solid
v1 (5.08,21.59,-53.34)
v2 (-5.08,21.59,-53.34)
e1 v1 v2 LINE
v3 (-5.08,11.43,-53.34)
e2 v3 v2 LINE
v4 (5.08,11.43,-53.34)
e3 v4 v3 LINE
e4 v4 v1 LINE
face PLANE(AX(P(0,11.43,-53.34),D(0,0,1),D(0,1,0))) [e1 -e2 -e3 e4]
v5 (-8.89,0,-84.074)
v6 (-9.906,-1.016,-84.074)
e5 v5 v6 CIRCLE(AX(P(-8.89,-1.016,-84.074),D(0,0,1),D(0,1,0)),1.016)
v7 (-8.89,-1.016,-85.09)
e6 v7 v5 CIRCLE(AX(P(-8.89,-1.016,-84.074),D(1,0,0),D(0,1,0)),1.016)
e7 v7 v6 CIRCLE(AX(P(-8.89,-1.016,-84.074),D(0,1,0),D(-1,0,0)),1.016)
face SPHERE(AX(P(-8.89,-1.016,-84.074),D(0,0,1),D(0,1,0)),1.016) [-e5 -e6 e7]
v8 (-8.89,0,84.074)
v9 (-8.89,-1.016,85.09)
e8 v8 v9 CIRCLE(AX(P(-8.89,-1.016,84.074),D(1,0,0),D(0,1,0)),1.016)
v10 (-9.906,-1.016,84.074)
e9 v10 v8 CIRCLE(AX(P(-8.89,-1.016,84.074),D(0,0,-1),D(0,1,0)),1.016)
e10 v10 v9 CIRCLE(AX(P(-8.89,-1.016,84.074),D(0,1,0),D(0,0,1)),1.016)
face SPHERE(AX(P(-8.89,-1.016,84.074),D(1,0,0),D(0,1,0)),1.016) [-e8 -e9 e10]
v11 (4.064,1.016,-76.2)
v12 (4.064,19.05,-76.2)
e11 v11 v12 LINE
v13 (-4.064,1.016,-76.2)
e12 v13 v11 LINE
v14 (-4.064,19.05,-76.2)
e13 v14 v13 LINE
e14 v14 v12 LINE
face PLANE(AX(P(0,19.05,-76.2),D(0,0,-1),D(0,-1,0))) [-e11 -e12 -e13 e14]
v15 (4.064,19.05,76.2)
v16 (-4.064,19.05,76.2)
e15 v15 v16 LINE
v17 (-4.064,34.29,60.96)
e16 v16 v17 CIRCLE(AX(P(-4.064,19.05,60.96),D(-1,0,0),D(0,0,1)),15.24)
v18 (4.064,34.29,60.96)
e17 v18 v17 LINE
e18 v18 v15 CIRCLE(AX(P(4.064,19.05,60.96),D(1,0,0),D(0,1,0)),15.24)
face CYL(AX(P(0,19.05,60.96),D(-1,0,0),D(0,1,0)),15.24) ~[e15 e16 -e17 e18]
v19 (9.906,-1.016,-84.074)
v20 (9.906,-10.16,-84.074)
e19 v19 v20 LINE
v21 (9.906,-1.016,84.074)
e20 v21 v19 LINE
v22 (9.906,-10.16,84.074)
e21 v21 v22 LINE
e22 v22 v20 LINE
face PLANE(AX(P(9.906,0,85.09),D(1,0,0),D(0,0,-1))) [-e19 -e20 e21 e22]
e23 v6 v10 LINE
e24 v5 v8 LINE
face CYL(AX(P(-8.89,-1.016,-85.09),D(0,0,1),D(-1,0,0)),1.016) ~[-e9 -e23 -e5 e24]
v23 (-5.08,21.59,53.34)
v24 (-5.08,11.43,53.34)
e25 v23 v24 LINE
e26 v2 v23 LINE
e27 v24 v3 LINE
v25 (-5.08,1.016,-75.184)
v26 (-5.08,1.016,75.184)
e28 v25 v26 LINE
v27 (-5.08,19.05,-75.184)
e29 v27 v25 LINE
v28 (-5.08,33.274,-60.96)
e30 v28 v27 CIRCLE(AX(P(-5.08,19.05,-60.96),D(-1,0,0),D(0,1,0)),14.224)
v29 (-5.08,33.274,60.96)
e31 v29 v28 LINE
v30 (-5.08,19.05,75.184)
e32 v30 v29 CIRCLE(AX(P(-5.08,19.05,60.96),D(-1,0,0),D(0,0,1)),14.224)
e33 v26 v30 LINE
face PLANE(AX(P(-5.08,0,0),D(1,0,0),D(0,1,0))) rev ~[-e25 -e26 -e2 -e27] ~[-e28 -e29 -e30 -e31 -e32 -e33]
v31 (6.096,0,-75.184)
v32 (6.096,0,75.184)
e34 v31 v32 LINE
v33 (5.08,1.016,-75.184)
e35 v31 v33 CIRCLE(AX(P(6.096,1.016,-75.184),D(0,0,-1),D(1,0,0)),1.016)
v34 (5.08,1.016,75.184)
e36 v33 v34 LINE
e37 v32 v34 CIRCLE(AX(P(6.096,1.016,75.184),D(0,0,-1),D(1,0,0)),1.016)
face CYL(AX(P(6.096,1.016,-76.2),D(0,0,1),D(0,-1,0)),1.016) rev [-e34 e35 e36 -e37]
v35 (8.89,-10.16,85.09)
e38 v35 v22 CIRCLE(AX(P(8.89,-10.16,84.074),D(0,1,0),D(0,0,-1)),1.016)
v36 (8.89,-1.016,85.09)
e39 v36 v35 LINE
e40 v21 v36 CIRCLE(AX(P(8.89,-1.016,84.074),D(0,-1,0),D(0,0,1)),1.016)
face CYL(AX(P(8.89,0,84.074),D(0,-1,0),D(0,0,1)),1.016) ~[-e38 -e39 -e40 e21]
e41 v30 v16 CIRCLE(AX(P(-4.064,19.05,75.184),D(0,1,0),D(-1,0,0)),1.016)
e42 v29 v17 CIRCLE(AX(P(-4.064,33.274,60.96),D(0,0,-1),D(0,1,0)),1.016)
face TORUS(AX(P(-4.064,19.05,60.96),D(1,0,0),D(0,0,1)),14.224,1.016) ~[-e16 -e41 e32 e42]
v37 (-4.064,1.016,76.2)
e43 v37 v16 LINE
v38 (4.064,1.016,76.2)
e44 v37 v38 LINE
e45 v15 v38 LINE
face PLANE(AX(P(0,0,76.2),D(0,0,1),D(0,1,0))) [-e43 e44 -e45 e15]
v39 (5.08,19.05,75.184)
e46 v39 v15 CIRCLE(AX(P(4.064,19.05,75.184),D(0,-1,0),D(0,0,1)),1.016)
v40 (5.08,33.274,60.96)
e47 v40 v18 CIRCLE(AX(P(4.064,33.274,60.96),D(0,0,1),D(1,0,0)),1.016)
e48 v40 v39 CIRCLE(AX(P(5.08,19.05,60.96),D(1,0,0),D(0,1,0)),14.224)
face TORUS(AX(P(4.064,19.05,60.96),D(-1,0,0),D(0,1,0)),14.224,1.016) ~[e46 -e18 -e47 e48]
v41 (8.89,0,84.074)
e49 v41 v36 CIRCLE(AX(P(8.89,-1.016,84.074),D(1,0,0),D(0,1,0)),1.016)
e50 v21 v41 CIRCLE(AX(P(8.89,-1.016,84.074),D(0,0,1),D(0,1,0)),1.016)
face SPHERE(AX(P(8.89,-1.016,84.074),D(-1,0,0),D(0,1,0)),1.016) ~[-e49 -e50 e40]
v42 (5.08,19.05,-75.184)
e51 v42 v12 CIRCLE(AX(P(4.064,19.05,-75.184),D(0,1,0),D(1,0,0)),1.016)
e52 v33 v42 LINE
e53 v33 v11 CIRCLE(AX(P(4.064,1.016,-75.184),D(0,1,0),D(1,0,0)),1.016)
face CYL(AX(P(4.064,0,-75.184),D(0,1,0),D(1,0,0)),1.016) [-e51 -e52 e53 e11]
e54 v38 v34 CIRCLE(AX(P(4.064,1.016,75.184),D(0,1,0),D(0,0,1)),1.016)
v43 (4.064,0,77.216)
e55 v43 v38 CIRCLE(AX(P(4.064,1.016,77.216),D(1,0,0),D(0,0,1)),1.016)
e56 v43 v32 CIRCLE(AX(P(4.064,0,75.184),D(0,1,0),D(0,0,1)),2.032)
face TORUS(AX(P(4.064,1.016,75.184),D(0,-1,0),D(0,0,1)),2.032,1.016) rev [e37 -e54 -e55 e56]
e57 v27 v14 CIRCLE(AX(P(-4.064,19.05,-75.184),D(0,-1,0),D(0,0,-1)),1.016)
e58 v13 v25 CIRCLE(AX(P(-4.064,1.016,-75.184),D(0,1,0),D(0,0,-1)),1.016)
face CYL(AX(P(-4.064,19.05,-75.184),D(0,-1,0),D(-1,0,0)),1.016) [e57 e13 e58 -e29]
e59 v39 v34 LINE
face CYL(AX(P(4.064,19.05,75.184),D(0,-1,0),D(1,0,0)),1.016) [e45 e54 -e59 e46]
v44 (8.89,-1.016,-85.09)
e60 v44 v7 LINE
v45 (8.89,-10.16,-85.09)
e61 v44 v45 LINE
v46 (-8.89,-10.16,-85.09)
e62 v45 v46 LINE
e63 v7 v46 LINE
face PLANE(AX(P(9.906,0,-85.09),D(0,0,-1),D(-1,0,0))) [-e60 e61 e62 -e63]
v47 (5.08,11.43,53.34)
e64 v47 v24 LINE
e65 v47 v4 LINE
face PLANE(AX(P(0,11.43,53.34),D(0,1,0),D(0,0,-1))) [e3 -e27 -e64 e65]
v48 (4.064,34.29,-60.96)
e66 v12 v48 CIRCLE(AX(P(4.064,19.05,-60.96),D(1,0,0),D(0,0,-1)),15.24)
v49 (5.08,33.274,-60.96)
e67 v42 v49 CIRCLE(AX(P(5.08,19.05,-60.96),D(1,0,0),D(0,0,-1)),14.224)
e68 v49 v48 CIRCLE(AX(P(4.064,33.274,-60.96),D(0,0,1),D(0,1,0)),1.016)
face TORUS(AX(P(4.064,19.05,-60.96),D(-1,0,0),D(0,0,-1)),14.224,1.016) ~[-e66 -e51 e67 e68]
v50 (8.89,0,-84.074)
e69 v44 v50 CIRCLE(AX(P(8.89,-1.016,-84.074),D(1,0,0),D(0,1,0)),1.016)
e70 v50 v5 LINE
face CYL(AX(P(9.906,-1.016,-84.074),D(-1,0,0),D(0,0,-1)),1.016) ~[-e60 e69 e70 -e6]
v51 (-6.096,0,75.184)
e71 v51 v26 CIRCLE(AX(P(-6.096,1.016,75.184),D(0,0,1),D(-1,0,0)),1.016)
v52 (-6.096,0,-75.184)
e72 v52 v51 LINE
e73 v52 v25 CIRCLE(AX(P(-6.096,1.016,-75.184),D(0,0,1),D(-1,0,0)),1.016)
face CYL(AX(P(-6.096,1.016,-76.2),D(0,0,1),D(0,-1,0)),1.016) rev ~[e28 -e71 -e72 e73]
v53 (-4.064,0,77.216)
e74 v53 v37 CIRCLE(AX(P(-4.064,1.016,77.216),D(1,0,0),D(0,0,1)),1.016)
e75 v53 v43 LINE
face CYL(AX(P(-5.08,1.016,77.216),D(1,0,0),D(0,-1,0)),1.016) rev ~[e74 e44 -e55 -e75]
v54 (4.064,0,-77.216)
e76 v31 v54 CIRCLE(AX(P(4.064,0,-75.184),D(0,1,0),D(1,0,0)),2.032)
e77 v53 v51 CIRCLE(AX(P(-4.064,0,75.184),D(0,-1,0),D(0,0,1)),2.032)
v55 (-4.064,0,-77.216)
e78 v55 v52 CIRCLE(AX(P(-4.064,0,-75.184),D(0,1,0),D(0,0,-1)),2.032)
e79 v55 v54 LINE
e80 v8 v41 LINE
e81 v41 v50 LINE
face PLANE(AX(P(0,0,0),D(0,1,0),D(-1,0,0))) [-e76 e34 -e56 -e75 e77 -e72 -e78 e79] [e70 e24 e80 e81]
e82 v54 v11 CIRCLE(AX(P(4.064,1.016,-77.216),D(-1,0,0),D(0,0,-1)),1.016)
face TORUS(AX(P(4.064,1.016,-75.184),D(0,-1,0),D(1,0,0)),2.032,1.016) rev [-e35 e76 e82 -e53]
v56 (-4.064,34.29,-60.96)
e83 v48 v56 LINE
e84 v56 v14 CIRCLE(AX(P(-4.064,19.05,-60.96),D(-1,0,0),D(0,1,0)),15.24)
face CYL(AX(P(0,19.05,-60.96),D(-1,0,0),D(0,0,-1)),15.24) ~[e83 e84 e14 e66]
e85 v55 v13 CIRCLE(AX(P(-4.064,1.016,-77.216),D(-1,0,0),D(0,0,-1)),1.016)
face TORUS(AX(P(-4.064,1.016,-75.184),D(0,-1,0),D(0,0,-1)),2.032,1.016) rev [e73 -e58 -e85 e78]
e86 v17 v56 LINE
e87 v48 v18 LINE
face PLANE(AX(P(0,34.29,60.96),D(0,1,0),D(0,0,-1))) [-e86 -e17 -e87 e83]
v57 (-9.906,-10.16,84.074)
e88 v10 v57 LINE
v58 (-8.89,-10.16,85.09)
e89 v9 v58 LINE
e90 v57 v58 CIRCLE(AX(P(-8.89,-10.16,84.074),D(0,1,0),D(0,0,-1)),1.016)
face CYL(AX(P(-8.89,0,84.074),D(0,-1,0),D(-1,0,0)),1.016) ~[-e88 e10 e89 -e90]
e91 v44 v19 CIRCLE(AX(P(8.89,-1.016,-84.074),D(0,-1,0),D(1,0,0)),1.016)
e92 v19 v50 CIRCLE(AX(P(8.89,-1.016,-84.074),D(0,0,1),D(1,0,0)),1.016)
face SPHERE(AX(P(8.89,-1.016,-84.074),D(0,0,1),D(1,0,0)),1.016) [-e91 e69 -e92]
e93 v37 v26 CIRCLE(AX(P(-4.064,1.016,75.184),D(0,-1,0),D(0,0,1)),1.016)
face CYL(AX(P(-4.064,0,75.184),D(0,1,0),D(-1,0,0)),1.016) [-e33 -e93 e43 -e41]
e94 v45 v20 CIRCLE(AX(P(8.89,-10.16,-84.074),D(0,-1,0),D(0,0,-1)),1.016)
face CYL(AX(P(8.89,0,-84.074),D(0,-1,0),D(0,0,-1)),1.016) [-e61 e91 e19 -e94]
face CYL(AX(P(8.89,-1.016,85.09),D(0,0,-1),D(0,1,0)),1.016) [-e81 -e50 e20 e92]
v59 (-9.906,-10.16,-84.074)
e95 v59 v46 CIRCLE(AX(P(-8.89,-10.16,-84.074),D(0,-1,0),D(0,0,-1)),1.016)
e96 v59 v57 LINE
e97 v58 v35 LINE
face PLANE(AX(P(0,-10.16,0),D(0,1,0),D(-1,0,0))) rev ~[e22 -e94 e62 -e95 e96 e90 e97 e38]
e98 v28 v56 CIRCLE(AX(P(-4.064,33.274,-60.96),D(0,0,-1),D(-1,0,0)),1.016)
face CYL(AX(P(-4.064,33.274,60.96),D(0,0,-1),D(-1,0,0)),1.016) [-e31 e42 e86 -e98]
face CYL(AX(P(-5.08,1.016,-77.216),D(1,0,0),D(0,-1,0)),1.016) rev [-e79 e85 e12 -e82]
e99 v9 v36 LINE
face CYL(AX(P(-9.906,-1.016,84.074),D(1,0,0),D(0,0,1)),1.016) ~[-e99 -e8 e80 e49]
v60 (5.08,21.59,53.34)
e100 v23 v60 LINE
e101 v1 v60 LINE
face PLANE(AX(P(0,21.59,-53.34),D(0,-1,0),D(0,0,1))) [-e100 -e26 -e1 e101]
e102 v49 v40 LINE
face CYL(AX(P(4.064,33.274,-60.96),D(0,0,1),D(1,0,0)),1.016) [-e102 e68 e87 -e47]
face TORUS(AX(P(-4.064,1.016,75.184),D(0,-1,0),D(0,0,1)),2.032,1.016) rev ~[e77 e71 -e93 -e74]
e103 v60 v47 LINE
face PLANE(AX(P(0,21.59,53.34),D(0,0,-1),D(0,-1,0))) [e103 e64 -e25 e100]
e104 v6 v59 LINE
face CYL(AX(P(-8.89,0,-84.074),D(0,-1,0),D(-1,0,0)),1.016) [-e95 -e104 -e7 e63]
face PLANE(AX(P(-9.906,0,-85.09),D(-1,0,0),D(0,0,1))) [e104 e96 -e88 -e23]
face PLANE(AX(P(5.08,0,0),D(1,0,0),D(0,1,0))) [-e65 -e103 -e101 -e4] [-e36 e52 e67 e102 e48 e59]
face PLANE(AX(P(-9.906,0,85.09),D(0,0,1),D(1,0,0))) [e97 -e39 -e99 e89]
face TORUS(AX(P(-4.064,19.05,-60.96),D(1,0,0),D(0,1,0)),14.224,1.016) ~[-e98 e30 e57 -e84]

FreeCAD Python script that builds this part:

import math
import FreeCAD as App
import Part
import Sketcher
Q = App.Units.Quantity


def edges_at(feature, points):
    """Names of the edges that pass closest to the given points."""
    edges = feature.Shape.Edges
    near = lambda p: min(range(len(edges)), key=lambda i: edges[i].distToShape(Part.Vertex(*p))[0])
    return sorted({f"Edge{near(p) + 1}" for p in points})


def add_polygon(sketch, points):
    """Adds a closed chain of lines whose ends are joined by coincident constraints."""
    first, n = sketch.GeometryCount, len(points)
    for a, b in zip(points, points[1:] + points[:1]):
        sketch.addGeometry(Part.LineSegment(App.Vector(*a, 0), App.Vector(*b, 0)), False)
    for i in range(n):
        sketch.addConstraint(Sketcher.Constraint("Coincident", first + i, 2, first + (i + 1) % n, 1))

doc = App.newDocument("Part")
body = doc.addObject("PartDesign::Body", "Body")

# Sketch on YZ plane
sketch1 = body.newObject("Sketcher::SketchObject", "Sketch")
sketch1.AttachmentSupport = (doc.getObject("YZ_Plane"), [""])
sketch1.MapMode = "FlatFace"
sketch1.addGeometry(Part.LineSegment(App.Vector(19, 76, 0), App.Vector(0, 76, 0)), False)  # 0
sketch1.addGeometry(Part.LineSegment(App.Vector(0, 76, 0), App.Vector(0, -76, 0)), False)  # 1
sketch1.addGeometry(Part.LineSegment(App.Vector(0, -76, 0), App.Vector(19, -76, 0)), False)  # 2
sketch1.addGeometry(Part.ArcOfCircle(Part.Circle(App.Vector(19, -61, 0), App.Vector(0, 0, 1), 15), math.radians(-90), math.radians(0)), False)  # 3
sketch1.addGeometry(Part.LineSegment(App.Vector(34, -61, 0), App.Vector(34, 61, 0)), False)  # 4
sketch1.addGeometry(Part.ArcOfCircle(Part.Circle(App.Vector(19, 61, 0), App.Vector(0, 0, 1), 15), math.radians(0), math.radians(90)), False)  # 5
add_polygon(sketch1, [(11, 53), (22, 53), (22, -53), (11, -53)])  # lines 6-9
sketch1.addConstraint(Sketcher.Constraint("Coincident", 0, 2, 1, 1))
sketch1.addConstraint(Sketcher.Constraint("Coincident", 1, 2, 2, 1))
sketch1.addConstraint(Sketcher.Constraint("Tangent", 2, 2, 3, 1))
sketch1.addConstraint(Sketcher.Constraint("Tangent", 3, 2, 4, 1))
sketch1.addConstraint(Sketcher.Constraint("Tangent", 4, 2, 5, 1))
sketch1.addConstraint(Sketcher.Constraint("Tangent", 5, 2, 0, 1))
sketch1.addConstraint(Sketcher.Constraint("Horizontal", 0))
sketch1.addConstraint(Sketcher.Constraint("Vertical", 1))
sketch1.addConstraint(Sketcher.Constraint("Horizontal", 2))
sketch1.addConstraint(Sketcher.Constraint("Vertical", 4))
sketch1.addConstraint(Sketcher.Constraint("Horizontal", 6))
sketch1.addConstraint(Sketcher.Constraint("Vertical", 7))
sketch1.addConstraint(Sketcher.Constraint("Horizontal", 8))
sketch1.addConstraint(Sketcher.Constraint("Vertical", 9))
sketch1.addConstraint(Sketcher.Constraint("Equal", 3, 5))
sketch1.addConstraint(Sketcher.Constraint("Symmetric", 0, 2, 1, 2, -1, 1))
sketch1.addConstraint(Sketcher.Constraint("Radius", 3, Q("0.6 in")))
sketch1.addConstraint(Sketcher.Constraint("DistanceY", 1, 2, 1, 1, Q("6 in")))
sketch1.addConstraint(Sketcher.Constraint("DistanceX", 6, 1, 6, 2, Q("0.4 in")))
sketch1.addConstraint(Sketcher.Constraint("DistanceY", 7, 2, 7, 1, Q("4.2 in")))
sketch1.addConstraint(Sketcher.Constraint("DistanceX", -1, 1, 3, 2, Q("1.35 in")))
sketch1.addConstraint(Sketcher.Constraint("DistanceX", -1, 1, 8, 2, Q("0.45 in")))
sketch1.addConstraint(Sketcher.Constraint("DistanceY", -1, 1, 6, 2, Q("2.1 in")))
pad1 = body.newObject("PartDesign::Pad", "Pad")
pad1.Profile = sketch1
pad1.Length = Q("0.4 in")
pad1.Midplane = True

# Sketch on XZ plane
sketch2 = body.newObject("Sketcher::SketchObject", "Sketch001")
sketch2.AttachmentSupport = (doc.getObject("XZ_Plane"), [""])
sketch2.MapMode = "FlatFace"
add_polygon(sketch2, [(-10, -85), (-10, 85), (10, 85), (10, -85)])  # lines 0-3
sketch2.addConstraint(Sketcher.Constraint("Vertical", 0))
sketch2.addConstraint(Sketcher.Constraint("Horizontal", 1))
sketch2.addConstraint(Sketcher.Constraint("Vertical", 2))
sketch2.addConstraint(Sketcher.Constraint("Horizontal", 3))
sketch2.addConstraint(Sketcher.Constraint("Symmetric", 0, 2, 2, 2, -1, 1))
sketch2.addConstraint(Sketcher.Constraint("DistanceY", 0, 1, 0, 2, Q("6.7 in")))
sketch2.addConstraint(Sketcher.Constraint("DistanceX", 1, 1, 1, 2, Q("0.78 in")))
pad2 = body.newObject("PartDesign::Pad", "Pad001")
pad2.Profile = sketch2
pad2.Length = Q("0.4 in")
doc.recompute()

fillet = body.newObject("PartDesign::Fillet", "Fillet")
fillet.Base = (pad2, edges_at(pad2, [
    (5.08, 29.826, 71.736),
    (5.08, 9.525, 76.2),
    (5.08, 29.826, -71.736),
    (5.08, 9.525, -76.2),
    (5.08, 34.29, 0),
    (-5.08, 34.29, 0),
    (-5.08, 29.826, -71.736),
    (-5.08, 9.525, -76.2),
    (-5.08, 9.525, 76.2),
    (-5.08, 29.826, 71.736),
    (0, 0, 76.2),
    (5.08, 0, 0),
    (0, 0, -76.2),
    (-5.08, 0, 0),
    (0, 0, 85.09),
    (9.906, 0, 0),
    (-9.906, 0, 0),
    (9.906, -5.08, 85.09),
    (-9.906, -5.08, 85.09),
    (9.906, -5.08, -85.09),
    (0, 0, -85.09),
    (-9.906, -5.08, -85.09),
]))
fillet.Radius = Q("0.04 in")

doc.recompute()
